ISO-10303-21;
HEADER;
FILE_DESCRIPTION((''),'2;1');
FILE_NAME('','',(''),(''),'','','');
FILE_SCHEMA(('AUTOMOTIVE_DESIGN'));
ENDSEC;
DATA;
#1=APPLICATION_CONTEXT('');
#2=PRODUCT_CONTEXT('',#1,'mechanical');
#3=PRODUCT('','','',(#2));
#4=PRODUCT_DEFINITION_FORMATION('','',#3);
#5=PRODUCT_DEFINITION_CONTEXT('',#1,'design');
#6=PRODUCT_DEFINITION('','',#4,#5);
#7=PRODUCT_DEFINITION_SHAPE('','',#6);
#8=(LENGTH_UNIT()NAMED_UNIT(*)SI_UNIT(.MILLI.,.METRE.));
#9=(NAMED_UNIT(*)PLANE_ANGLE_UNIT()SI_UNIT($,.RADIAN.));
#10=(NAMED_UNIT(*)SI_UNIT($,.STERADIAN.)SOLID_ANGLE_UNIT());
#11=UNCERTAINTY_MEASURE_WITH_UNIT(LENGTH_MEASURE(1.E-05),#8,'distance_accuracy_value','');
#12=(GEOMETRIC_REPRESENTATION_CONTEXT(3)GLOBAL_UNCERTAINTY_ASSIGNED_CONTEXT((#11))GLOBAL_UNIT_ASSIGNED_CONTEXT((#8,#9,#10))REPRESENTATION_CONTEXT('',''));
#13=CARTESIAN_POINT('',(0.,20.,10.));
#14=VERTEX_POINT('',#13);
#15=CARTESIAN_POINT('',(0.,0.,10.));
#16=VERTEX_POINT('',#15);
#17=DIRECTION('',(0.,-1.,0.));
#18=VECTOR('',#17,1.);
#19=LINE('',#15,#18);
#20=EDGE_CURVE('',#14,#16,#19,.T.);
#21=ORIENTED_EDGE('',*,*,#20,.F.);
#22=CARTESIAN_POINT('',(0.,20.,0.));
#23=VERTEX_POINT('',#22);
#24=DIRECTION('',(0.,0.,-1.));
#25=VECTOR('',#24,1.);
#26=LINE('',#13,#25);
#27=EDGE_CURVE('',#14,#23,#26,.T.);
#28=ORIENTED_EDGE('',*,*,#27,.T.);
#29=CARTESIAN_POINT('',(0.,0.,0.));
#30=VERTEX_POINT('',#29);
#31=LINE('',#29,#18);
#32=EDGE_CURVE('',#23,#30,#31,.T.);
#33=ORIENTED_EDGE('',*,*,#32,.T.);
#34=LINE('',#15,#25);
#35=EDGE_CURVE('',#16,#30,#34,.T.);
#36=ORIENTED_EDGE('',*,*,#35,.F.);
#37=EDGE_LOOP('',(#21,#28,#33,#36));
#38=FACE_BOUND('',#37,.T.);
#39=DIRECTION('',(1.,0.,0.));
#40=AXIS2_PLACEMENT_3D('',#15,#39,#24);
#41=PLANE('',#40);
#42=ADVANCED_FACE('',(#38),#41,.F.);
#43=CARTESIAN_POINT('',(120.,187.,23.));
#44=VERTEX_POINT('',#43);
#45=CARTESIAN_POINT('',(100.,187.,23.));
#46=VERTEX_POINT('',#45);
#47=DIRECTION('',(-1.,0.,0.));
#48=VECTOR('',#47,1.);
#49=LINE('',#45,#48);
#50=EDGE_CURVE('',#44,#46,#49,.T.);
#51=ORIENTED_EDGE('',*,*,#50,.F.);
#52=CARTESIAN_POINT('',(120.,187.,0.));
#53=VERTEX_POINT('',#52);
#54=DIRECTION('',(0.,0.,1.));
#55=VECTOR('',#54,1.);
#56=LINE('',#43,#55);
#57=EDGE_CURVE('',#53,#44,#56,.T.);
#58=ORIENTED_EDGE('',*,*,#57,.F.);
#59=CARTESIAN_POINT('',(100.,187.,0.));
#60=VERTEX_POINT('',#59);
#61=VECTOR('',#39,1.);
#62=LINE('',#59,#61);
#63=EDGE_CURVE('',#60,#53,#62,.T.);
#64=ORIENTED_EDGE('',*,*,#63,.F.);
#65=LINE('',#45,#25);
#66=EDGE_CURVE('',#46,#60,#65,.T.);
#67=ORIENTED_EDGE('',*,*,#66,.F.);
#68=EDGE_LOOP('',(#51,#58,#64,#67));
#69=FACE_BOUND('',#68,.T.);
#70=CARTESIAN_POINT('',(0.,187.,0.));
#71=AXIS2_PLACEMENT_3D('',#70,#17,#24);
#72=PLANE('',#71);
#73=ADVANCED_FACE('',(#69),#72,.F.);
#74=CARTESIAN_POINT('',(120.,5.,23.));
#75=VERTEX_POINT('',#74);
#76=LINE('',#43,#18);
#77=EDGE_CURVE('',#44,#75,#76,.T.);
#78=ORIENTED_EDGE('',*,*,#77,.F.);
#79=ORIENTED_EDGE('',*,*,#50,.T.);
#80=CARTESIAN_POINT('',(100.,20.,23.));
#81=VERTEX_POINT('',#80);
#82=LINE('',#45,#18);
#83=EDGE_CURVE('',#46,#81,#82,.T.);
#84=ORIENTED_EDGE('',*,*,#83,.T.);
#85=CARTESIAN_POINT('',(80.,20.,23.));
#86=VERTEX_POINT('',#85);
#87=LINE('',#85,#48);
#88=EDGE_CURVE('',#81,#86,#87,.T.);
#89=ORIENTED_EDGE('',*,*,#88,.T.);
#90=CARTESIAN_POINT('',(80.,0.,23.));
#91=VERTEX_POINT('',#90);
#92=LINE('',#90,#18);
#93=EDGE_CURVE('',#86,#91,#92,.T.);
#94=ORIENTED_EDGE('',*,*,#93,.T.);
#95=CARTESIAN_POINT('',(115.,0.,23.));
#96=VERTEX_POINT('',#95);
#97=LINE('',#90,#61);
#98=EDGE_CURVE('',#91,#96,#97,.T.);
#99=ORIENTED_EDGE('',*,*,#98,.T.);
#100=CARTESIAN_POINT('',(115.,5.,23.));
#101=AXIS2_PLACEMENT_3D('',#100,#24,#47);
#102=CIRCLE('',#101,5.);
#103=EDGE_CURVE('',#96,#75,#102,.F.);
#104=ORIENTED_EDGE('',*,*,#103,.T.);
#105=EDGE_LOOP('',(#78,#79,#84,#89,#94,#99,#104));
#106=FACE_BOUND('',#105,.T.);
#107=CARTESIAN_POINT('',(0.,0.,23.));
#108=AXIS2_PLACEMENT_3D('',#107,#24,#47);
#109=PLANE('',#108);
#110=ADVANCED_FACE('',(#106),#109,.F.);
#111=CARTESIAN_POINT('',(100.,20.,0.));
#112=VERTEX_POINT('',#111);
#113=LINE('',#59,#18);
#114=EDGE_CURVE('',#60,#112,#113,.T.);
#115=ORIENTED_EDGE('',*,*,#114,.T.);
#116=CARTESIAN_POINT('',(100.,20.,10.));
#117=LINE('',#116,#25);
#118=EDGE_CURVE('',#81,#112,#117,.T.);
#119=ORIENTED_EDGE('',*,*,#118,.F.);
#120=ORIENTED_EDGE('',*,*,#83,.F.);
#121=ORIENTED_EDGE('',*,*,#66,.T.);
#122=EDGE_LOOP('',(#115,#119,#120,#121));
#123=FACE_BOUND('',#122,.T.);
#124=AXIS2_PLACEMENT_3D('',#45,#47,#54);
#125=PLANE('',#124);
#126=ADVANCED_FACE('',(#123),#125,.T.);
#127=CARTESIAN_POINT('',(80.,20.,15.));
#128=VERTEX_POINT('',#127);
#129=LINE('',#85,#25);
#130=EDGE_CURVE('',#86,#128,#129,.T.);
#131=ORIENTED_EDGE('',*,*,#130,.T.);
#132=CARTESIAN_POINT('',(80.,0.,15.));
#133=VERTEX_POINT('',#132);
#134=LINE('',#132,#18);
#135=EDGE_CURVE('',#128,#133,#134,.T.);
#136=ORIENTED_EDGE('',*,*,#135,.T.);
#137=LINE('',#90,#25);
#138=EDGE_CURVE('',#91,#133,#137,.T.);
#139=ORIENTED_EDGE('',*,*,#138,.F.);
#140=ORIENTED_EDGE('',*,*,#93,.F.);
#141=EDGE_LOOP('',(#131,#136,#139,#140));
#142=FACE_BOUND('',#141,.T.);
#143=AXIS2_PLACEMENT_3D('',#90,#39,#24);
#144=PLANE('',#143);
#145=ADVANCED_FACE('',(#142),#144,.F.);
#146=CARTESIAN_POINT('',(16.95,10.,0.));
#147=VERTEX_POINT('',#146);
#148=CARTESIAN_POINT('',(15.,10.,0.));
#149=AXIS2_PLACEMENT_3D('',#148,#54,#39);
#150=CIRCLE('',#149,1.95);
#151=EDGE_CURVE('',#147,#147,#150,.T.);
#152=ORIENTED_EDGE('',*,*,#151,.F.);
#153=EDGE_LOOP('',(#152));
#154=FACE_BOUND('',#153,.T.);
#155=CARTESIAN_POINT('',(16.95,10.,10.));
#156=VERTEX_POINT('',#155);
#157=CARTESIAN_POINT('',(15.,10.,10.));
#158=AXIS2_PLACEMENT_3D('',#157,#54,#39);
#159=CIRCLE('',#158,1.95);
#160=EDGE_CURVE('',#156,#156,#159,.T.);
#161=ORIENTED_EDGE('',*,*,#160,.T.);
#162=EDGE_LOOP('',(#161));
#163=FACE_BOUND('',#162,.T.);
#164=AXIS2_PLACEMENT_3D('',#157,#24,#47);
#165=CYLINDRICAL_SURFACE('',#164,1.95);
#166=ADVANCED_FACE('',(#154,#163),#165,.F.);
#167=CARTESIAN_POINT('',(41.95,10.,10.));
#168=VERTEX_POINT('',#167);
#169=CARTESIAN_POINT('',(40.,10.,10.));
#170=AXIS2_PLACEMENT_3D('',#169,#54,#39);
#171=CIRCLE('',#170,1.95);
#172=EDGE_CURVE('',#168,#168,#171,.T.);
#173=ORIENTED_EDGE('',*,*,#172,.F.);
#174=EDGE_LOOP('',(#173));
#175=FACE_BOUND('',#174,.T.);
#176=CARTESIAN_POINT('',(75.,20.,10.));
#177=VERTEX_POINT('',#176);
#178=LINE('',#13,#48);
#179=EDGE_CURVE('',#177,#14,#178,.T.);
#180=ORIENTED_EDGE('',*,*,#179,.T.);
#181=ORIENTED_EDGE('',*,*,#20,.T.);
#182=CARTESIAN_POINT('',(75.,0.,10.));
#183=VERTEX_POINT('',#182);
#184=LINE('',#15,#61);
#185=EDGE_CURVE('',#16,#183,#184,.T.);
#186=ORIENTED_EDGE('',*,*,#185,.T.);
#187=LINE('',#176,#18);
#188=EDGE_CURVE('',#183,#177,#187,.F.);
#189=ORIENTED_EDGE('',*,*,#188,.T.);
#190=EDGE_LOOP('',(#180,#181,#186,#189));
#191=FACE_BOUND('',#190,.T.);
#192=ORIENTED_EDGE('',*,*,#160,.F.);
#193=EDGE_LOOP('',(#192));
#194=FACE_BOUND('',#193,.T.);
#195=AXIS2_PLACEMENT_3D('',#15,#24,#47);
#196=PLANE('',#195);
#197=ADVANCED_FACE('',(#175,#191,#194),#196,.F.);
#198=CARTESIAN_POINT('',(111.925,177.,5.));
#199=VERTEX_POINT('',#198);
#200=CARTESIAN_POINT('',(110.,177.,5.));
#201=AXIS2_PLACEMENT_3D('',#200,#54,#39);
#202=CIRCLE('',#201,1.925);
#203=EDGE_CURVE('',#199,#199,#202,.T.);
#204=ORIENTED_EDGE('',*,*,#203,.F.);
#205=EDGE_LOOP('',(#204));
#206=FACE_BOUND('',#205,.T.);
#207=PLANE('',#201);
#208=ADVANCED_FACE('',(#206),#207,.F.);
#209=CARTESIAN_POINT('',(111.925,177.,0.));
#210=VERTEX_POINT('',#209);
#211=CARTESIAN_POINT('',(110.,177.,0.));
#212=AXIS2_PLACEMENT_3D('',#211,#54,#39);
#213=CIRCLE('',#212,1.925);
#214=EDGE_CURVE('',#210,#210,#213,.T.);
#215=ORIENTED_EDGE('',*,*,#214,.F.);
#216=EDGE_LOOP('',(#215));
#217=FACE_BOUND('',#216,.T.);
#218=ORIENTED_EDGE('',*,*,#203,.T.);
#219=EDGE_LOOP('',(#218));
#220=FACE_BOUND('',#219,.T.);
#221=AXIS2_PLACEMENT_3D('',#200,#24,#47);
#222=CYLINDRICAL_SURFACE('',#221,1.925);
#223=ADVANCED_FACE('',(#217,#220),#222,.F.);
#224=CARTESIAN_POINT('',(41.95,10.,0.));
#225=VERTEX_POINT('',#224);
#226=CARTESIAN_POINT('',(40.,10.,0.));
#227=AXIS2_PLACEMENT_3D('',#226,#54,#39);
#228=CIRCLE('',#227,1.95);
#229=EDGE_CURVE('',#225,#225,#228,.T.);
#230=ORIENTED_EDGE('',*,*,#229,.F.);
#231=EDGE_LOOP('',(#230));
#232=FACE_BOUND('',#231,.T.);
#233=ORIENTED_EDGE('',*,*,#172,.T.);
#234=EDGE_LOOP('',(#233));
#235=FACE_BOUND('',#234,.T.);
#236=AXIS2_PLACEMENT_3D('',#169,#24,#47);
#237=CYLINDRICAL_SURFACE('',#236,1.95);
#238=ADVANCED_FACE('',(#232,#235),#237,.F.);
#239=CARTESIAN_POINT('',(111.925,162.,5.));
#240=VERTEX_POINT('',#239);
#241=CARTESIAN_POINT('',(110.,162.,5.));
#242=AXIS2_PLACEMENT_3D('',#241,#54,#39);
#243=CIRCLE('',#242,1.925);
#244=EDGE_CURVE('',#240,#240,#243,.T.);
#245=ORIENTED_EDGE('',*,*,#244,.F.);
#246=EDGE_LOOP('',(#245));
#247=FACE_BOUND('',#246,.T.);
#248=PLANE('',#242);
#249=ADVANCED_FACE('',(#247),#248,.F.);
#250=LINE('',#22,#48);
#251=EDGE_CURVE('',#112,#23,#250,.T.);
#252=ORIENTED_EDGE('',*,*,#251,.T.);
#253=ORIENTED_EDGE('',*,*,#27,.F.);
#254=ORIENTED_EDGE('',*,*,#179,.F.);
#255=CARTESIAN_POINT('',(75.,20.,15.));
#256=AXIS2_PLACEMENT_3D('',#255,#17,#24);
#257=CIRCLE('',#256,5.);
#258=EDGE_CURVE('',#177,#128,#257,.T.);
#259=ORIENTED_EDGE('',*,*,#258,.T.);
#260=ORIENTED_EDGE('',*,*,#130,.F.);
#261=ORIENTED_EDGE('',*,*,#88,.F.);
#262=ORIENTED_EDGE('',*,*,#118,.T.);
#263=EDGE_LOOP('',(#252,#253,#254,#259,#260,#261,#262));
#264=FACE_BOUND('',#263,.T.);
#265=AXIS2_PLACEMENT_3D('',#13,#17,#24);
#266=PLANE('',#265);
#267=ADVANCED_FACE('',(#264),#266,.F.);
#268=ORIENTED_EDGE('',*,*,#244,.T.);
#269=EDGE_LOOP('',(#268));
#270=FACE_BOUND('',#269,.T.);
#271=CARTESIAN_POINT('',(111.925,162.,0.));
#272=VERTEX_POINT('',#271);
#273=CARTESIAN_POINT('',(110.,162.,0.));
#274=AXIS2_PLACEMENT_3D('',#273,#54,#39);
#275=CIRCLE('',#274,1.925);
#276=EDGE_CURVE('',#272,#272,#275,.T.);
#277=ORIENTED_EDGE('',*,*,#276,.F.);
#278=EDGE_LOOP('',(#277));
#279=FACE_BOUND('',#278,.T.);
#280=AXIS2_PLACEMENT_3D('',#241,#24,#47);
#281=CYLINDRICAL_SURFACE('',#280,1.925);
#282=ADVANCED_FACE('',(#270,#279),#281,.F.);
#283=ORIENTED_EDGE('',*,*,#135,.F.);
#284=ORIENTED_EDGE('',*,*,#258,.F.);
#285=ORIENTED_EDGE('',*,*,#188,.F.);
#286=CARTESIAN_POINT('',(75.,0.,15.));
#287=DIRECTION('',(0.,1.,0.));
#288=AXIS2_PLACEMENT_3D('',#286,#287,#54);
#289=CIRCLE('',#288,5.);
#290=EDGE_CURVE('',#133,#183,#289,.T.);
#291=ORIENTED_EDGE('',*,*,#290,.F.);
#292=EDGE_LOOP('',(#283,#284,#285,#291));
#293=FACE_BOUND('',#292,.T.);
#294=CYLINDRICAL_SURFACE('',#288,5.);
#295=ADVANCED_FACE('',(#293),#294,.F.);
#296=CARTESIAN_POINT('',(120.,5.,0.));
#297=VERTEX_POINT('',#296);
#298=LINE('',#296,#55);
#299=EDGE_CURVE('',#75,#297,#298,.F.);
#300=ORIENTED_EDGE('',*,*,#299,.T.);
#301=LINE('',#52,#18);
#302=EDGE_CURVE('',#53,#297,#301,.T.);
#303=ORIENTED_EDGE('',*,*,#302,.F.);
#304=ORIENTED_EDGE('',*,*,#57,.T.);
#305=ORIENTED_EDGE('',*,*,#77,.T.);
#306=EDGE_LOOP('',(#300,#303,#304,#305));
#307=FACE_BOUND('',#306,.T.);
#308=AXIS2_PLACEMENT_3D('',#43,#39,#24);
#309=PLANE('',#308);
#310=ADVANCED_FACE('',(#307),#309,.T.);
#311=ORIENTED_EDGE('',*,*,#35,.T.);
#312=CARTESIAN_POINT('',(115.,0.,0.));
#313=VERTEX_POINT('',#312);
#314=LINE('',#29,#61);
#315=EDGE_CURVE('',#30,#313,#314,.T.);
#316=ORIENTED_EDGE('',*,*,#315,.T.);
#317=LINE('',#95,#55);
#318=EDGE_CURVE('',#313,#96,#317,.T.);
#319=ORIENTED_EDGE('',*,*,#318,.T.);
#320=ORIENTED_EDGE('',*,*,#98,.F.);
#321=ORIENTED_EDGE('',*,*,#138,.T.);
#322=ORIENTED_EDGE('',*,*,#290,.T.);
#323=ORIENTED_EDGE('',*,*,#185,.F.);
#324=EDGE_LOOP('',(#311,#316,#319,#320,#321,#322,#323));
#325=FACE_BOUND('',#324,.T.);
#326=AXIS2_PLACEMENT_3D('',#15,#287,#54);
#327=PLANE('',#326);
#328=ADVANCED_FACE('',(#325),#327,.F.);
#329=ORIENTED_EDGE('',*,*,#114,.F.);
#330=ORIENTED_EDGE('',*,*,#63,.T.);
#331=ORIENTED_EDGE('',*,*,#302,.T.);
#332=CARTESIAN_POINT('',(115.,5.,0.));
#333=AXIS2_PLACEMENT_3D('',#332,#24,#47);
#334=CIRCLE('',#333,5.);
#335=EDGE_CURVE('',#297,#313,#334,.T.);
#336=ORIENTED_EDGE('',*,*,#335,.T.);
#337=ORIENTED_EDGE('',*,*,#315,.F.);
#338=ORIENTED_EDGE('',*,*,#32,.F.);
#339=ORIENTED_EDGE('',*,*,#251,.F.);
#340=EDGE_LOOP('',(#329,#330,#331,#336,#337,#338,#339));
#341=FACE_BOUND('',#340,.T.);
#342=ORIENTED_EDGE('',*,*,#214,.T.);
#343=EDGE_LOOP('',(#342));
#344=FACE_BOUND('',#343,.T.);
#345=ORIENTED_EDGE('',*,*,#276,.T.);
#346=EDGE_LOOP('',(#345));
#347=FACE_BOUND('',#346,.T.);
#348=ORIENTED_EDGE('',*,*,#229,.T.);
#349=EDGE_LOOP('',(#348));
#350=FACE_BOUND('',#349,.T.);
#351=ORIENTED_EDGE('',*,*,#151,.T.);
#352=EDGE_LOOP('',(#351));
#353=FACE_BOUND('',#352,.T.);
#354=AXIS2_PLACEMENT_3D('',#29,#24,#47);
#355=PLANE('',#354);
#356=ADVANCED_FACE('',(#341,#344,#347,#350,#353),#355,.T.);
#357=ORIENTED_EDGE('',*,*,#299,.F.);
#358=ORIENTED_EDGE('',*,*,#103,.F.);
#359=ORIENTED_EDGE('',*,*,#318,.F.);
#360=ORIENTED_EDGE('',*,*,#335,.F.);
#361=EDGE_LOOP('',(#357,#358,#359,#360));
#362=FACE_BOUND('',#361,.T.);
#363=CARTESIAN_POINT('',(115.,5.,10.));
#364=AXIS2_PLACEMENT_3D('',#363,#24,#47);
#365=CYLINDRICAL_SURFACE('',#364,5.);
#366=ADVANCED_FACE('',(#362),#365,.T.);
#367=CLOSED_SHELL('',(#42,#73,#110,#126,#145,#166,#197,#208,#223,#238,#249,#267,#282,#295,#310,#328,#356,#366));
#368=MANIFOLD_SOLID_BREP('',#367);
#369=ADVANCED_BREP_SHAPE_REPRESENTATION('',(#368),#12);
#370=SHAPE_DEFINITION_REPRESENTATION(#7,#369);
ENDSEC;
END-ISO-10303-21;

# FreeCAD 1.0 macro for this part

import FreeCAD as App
import Part
import Sketcher


def edges_at(feature, points):
    """Names of the edges that pass closest to the given points."""
    edges = feature.Shape.Edges
    near = lambda p: min(range(len(edges)), key=lambda i: edges[i].distToShape(Part.Vertex(*p))[0])
    return sorted({f"Edge{near(p) + 1}" for p in points})

doc = App.newDocument("Part")
body = doc.addObject("PartDesign::Body", "Body")

# Sketch on XY plane
sketch1 = body.newObject("Sketcher::SketchObject", "Sketch")
sketch1.AttachmentSupport = (doc.getObject("XY_Plane"), [""])
sketch1.MapMode = "FlatFace"
sketch1.addGeometry([
    Part.LineSegment(App.Vector(0, 20, 0), App.Vector(0, 0, 0)),  # 0
    Part.LineSegment(App.Vector(0, 0, 0), App.Vector(100, 0, 0)),  # 1
    Part.LineSegment(App.Vector(100, 0, 0), App.Vector(100, 20, 0)),  # 2
    Part.LineSegment(App.Vector(100, 20, 0), App.Vector(0, 20, 0)),  # 3
    Part.Circle(App.Vector(15, 10, 0), App.Vector(0, 0, 1), 1.95),  # 4
    Part.Circle(App.Vector(40, 10, 0), App.Vector(0, 0, 1), 1.95),  # 5
], False)
sketch1.addConstraint([
    Sketcher.Constraint("Coincident", 0, 2, 1, 1),
    Sketcher.Constraint("Coincident", 1, 2, 2, 1),
    Sketcher.Constraint("Coincident", 2, 2, 3, 1),
    Sketcher.Constraint("Coincident", 3, 2, 0, 1),
    Sketcher.Constraint("Vertical", 0),
    Sketcher.Constraint("Horizontal", 1),
    Sketcher.Constraint("Vertical", 2),
    Sketcher.Constraint("Horizontal", 3),
    Sketcher.Constraint("Coincident", 0, 2, -1, 1),
    Sketcher.Constraint("Equal", 4, 5),
    Sketcher.Constraint("Horizontal", 4, 3, 5, 3),
    Sketcher.Constraint("Diameter", 4, 3.9),
    Sketcher.Constraint("DistanceX", 1, 1, 1, 2, 100.0),
    Sketcher.Constraint("DistanceY", 0, 2, 0, 1, 20.0),
    Sketcher.Constraint("DistanceX", -1, 1, 4, 3, 15.0),
    Sketcher.Constraint("DistanceY", -1, 1, 4, 3, 10.0),
    Sketcher.Constraint("DistanceX", -1, 1, 5, 3, 40.0),
])
pad1 = body.newObject("PartDesign::Pad", "Pad")
pad1.Profile = sketch1
pad1.Length = 10

# Sketch on XY plane
sketch2 = body.newObject("Sketcher::SketchObject", "Sketch001")
sketch2.AttachmentSupport = (doc.getObject("XY_Plane"), [""])
sketch2.MapMode = "FlatFace"
sketch2.AttachmentOffset = App.Placement(App.Vector(0, 0, 10), App.Rotation())
sketch2.addGeometry([
    Part.LineSegment(App.Vector(80, 20, 0), App.Vector(80, 0, 0)),
    Part.LineSegment(App.Vector(80, 0, 0), App.Vector(100, 0, 0)),
    Part.LineSegment(App.Vector(100, 0, 0), App.Vector(100, 20, 0)),
    Part.LineSegment(App.Vector(100, 20, 0), App.Vector(80, 20, 0)),
], False)
sketch2.addConstraint([
    Sketcher.Constraint("Coincident", 0, 2, 1, 1),
    Sketcher.Constraint("Coincident", 1, 2, 2, 1),
    Sketcher.Constraint("Coincident", 2, 2, 3, 1),
    Sketcher.Constraint("Coincident", 3, 2, 0, 1),
    Sketcher.Constraint("Vertical", 0),
    Sketcher.Constraint("Horizontal", 1),
    Sketcher.Constraint("Vertical", 2),
    Sketcher.Constraint("Horizontal", 3),
    Sketcher.Constraint("PointOnObject", 0, 2, -1),
    Sketcher.Constraint("Equal", 3, 0),
    Sketcher.Constraint("DistanceX", 1, 1, 1, 2, 20.0),
    Sketcher.Constraint("DistanceX", -1, 1, 0, 2, 80.0),
])
pad2 = body.newObject("PartDesign::Pad", "Pad001")
pad2.Profile = sketch2
pad2.Length = 13

# Sketch on XZ plane
sketch3 = body.newObject("Sketcher::SketchObject", "Sketch002")
sketch3.AttachmentSupport = (doc.getObject("XZ_Plane"), [""])
sketch3.MapMode = "FlatFace"
sketch3.addGeometry([
    Part.LineSegment(App.Vector(100, 23, 0), App.Vector(100, 0, 0)),
    Part.LineSegment(App.Vector(100, 0, 0), App.Vector(120, 0, 0)),
    Part.LineSegment(App.Vector(120, 0, 0), App.Vector(120, 23, 0)),
    Part.LineSegment(App.Vector(120, 23, 0), App.Vector(100, 23, 0)),
], False)
sketch3.addConstraint([
    Sketcher.Constraint("Coincident", 0, 2, 1, 1),
    Sketcher.Constraint("Coincident", 1, 2, 2, 1),
    Sketcher.Constraint("Coincident", 2, 2, 3, 1),
    Sketcher.Constraint("Coincident", 3, 2, 0, 1),
    Sketcher.Constraint("Vertical", 0),
    Sketcher.Constraint("Horizontal", 1),
    Sketcher.Constraint("Vertical", 2),
    Sketcher.Constraint("Horizontal", 3),
    Sketcher.Constraint("PointOnObject", 0, 2, -1),
    Sketcher.Constraint("DistanceX", 1, 1, 1, 2, 20.0),
    Sketcher.Constraint("DistanceY", 0, 2, 0, 1, 23.0),
    Sketcher.Constraint("DistanceX", -1, 1, 0, 2, 100.0),
])
pad3 = body.newObject("PartDesign::Pad", "Pad002")
pad3.Profile = sketch3
pad3.Length = 187
pad3.Reversed = True
doc.recompute()

fillet = body.newObject("PartDesign::Fillet", "Fillet")
fillet.Base = (pad3, edges_at(pad3, [(80, 10, 10)]))
fillet.Radius = 5
doc.recompute()

fillet2 = body.newObject("PartDesign::Fillet", "Fillet001")
fillet2.Base = (fillet, edges_at(fillet, [(120, 0, 11.5)]))
fillet2.Radius = 5

# Sketch on XY plane
sketch4 = body.newObject("Sketcher::SketchObject", "Sketch003")
sketch4.AttachmentSupport = (doc.getObject("XY_Plane"), [""])
sketch4.MapMode = "FlatFace"
sketch4.addGeometry([
    Part.Circle(App.Vector(110, 177, 0), App.Vector(0, 0, 1), 1.925),
    Part.Circle(App.Vector(110, 162, 0), App.Vector(0, 0, 1), 1.925),
], False)
sketch4.addConstraint([
    Sketcher.Constraint("Equal", 0, 1),
    Sketcher.Constraint("Vertical", 0, 3, 1, 3),
    Sketcher.Constraint("Diameter", 0, 3.85),
    Sketcher.Constraint("DistanceX", -1, 1, 0, 3, 110.0),
    Sketcher.Constraint("DistanceY", -1, 1, 0, 3, 177.0),
    Sketcher.Constraint("DistanceY", -1, 1, 1, 3, 162.0),
])
pocket1 = body.newObject("PartDesign::Pocket", "Pocket")
pocket1.Profile = sketch4
pocket1.Length = 5
pocket1.Reversed = True

doc.recompute()
